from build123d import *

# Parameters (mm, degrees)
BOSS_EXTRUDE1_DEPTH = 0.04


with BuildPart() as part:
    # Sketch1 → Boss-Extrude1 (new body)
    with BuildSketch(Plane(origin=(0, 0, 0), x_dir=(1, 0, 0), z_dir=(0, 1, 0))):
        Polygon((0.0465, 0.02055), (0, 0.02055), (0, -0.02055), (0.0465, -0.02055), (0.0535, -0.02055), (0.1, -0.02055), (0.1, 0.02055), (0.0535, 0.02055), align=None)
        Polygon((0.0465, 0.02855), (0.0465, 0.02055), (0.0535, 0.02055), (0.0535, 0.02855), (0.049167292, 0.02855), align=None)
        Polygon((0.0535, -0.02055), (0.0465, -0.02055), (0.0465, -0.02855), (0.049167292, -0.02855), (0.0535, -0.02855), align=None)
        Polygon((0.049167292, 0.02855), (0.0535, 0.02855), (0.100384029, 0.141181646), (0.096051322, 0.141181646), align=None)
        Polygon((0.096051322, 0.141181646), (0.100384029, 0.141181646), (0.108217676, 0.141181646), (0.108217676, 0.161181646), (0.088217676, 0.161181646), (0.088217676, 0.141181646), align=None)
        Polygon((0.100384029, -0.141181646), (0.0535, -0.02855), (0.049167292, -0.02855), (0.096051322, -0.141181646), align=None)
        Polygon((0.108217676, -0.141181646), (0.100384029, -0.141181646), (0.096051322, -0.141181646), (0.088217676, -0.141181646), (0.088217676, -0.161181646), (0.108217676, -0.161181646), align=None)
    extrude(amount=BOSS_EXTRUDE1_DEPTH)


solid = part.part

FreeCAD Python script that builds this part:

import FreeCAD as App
import Part
import Sketcher

V = App.Vector
Q = App.Units.Quantity


def add_polygon(sketch, points):
    """Adds a closed chain of lines whose ends are joined by coincident constraints."""
    first, n = sketch.GeometryCount, len(points)
    for a, b in zip(points, points[1:] + points[:1]):
        sketch.addGeometry(Part.LineSegment(App.Vector(*a, 0), App.Vector(*b, 0)), False)
    for i in range(n):
        sketch.addConstraint(Sketcher.Constraint("Coincident", first + i, 2, first + (i + 1) % n, 1))

doc = App.newDocument("Part")
body = doc.addObject("PartDesign::Body", "Body")

sketch1 = doc.addObject("Sketcher::SketchObject", "Sketch")
body.addObject(sketch1)
sketch1.AttachmentSupport = (doc.XZ_Plane, [""])
sketch1.MapMode = "FlatFace"
add_polygon(sketch1, [(0, -0.0205), (0, 0.0205), (0.0465, 0.0205), (0.0465, 0.0285), (0.0492, 0.0285), (0.0961, 0.1412), (0.0882, 0.1412), (0.0882, 0.1612), (0.1082, 0.1612), (0.1082, 0.1412), (0.1004, 0.1412), (0.0535, 0.0285), (0.0535, 0.0205), (0.1, 0.0205), (0.1, -0.0205), (0.0535, -0.0205), (0.0535, -0.0285), (0.1004, -0.1412), (0.1082, -0.1412), (0.1082, -0.1612), (0.0882, -0.1612), (0.0882, -0.1412), (0.0961, -0.1412), (0.0492, -0.0285), (0.0465, -0.0285), (0.0465, -0.0205)])
sketch1.addConstraint(Sketcher.Constraint("Vertical", 0))
sketch1.addConstraint(Sketcher.Constraint("Horizontal", 1))
sketch1.addConstraint(Sketcher.Constraint("Vertical", 2))
sketch1.addConstraint(Sketcher.Constraint("Horizontal", 3))
sketch1.addConstraint(Sketcher.Constraint("Horizontal", 5))
sketch1.addConstraint(Sketcher.Constraint("Vertical", 6))
sketch1.addConstraint(Sketcher.Constraint("Horizontal", 7))
sketch1.addConstraint(Sketcher.Constraint("Vertical", 8))
sketch1.addConstraint(Sketcher.Constraint("Horizontal", 9))
sketch1.addConstraint(Sketcher.Constraint("Vertical", 11))
sketch1.addConstraint(Sketcher.Constraint("Horizontal", 12))
sketch1.addConstraint(Sketcher.Constraint("Vertical", 13))
sketch1.addConstraint(Sketcher.Constraint("Horizontal", 14))
sketch1.addConstraint(Sketcher.Constraint("Vertical", 15))
sketch1.addConstraint(Sketcher.Constraint("Horizontal", 17))
sketch1.addConstraint(Sketcher.Constraint("Vertical", 18))
sketch1.addConstraint(Sketcher.Constraint("Horizontal", 19))
sketch1.addConstraint(Sketcher.Constraint("Vertical", 20))
sketch1.addConstraint(Sketcher.Constraint("Horizontal", 21))
sketch1.addConstraint(Sketcher.Constraint("Horizontal", 23))
sketch1.addConstraint(Sketcher.Constraint("Vertical", 24))
sketch1.addConstraint(Sketcher.Constraint("Horizontal", 25))
sketch1.addConstraint(Sketcher.Constraint("Symmetric", 0, 2, 25, 2, -1, 1))
sketch1.addConstraint(Sketcher.Constraint("Symmetric", 11, 2, 14, 2, -1))
sketch1.addConstraint(Sketcher.Constraint("Symmetric", 9, 2, 16, 2, -1))
sketch1.addConstraint(Sketcher.Constraint("Symmetric", 7, 2, 18, 2, -1))
sketch1.addConstraint(Sketcher.Constraint("Symmetric", 5, 2, 20, 2, -1))
sketch1.addConstraint(Sketcher.Constraint("Symmetric", 3, 2, 22, 2, -1))
sketch1.addConstraint(Sketcher.Constraint("Parallel", 4, 10))
sketch1.addConstraint(Sketcher.Constraint("Parallel", 16, 22))
sketch1.addConstraint(Sketcher.Constraint("Horizontal", 5, 2, 8, 2))
sketch1.addConstraint(Sketcher.Constraint("Horizontal", 3, 2, 10, 2))
sketch1.addConstraint(Sketcher.Constraint("Horizontal", 1, 2, 11, 2))
sketch1.addConstraint(Sketcher.Constraint("Horizontal", 15, 2, 22, 2))
sketch1.addConstraint(Sketcher.Constraint("Vertical", 2, 2, 23, 2))
sketch1.addConstraint(Sketcher.Constraint("Equal", 5, 9))
sketch1.addConstraint(Sketcher.Constraint("Equal", 1, 12))
sketch1.addConstraint(Sketcher.Constraint("Equal", 19, 6))
sketch1.addConstraint(Sketcher.Constraint("Angle", 4, Q("67.4 deg")))
sketch1.addConstraint(Sketcher.Constraint("DistanceX", 7, 1, 7, 2, Q("0.02 mm")))
sketch1.addConstraint(Sketcher.Constraint("DistanceX", -1, 1, 12, 2, Q("0.1 mm")))
sketch1.addConstraint(Sketcher.Constraint("DistanceY", 2, 1, 2, 2, Q("0.008 mm")))
sketch1.addConstraint(Sketcher.Constraint("Distance", 4, Q("0.122 mm")))
sketch1.addConstraint(Sketcher.Constraint("DistanceX", 1, 1, 1, 2, Q("0.0465 mm")))
sketch1.addConstraint(Sketcher.Constraint("DistanceY", 0, 1, 0, 2, Q("0.0411 mm")))
sketch1.addConstraint(Sketcher.Constraint("DistanceX", 3, 1, 3, 2, Q("0.002667 mm")))
pad1 = doc.addObject("PartDesign::Pad", "Pad")
body.addObject(pad1)
pad1.Profile = sketch1
pad1.Length = 0.04
pad1.Reversed = True

doc.recompute()
